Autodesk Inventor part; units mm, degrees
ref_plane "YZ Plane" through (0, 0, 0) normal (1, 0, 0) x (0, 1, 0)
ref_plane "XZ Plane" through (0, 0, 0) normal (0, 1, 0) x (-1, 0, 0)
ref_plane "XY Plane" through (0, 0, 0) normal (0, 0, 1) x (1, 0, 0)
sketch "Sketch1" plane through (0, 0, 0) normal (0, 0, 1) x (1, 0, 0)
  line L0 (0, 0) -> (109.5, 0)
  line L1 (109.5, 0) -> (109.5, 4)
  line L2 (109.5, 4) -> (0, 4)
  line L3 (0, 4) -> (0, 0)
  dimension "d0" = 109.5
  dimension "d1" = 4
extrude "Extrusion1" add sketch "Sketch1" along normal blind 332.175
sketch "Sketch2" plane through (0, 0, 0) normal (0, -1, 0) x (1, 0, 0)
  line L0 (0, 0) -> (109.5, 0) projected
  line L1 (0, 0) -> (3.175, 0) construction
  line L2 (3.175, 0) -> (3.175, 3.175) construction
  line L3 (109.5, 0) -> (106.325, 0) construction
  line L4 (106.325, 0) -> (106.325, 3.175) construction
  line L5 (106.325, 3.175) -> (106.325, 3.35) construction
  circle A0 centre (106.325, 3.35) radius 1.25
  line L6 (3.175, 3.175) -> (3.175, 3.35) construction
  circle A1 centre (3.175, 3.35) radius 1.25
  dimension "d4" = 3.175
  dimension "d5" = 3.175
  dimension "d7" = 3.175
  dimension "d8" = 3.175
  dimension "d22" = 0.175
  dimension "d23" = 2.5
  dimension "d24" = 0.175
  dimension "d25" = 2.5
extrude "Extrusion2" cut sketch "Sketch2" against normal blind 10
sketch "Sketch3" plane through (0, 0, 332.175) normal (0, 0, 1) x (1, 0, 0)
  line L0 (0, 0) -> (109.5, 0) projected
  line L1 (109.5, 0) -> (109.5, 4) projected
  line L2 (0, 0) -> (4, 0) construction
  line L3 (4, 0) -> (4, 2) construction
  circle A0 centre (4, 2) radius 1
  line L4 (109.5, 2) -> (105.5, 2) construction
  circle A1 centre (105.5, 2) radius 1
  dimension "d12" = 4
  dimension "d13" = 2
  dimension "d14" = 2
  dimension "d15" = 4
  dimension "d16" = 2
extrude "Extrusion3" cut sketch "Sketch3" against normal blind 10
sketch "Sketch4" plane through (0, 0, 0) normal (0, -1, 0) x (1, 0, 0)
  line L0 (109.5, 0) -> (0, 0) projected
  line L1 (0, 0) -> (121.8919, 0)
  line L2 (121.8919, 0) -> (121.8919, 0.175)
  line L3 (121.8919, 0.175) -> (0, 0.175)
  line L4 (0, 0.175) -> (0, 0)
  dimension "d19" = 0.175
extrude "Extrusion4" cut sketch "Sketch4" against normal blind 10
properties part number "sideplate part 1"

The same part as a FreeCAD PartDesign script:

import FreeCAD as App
import Part
import Sketcher
from FreeCAD import Vector
Q = App.Units.Quantity


def add_polygon(sketch, points):
    """Adds a closed chain of lines whose ends are joined by coincident constraints."""
    first, n = sketch.GeometryCount, len(points)
    for a, b in zip(points, points[1:] + points[:1]):
        sketch.addGeometry(Part.LineSegment(App.Vector(*a, 0), App.Vector(*b, 0)), False)
    for i in range(n):
        sketch.addConstraint(Sketcher.Constraint("Coincident", first + i, 2, first + (i + 1) % n, 1))

doc = App.newDocument("Part")
body = doc.addObject("PartDesign::Body", "Body")

# Sketch on XY plane
sketch1 = body.newObject("Sketcher::SketchObject", "Sketch")
sketch1.AttachmentSupport = (doc.getObject("XY_Plane"), [""])
sketch1.MapMode = "FlatFace"
add_polygon(sketch1, [(0, 4), (0, 0), (109.5, 0), (109.5, 4)])  # lines 0-3
sketch1.addConstraint(Sketcher.Constraint("Vertical", 0))
sketch1.addConstraint(Sketcher.Constraint("Horizontal", 1))
sketch1.addConstraint(Sketcher.Constraint("Vertical", 2))
sketch1.addConstraint(Sketcher.Constraint("Horizontal", 3))
sketch1.addConstraint(Sketcher.Constraint("Coincident", 0, 2, -1, 1))
sketch1.addConstraint(Sketcher.Constraint("DistanceY", 0, 2, 0, 1, Q("4 mm")))
sketch1.addConstraint(Sketcher.Constraint("DistanceX", 1, 1, 1, 2, Q("109.5 mm")))
pad1 = body.newObject("PartDesign::Pad", "Pad")
pad1.Profile = sketch1
pad1.Length = 332.175

# Sketch on XZ plane
sketch2 = body.newObject("Sketcher::SketchObject", "Sketch001")
sketch2.AttachmentSupport = (doc.getObject("XZ_Plane"), [""])
sketch2.MapMode = "FlatFace"
sketch2.addGeometry(Part.Circle(Vector(106.325, 3.35, 0), Vector(0, 0, 1), 1.25), False)
sketch2.addGeometry(Part.Circle(Vector(3.175, 3.35, 0), Vector(0, 0, 1), 1.25), False)
sketch2.addConstraint(Sketcher.Constraint("Equal", 0, 1))
sketch2.addConstraint(Sketcher.Constraint("Horizontal", 0, 3, 1, 3))
sketch2.addConstraint(Sketcher.Constraint("Diameter", 0, Q("2.5 mm")))
sketch2.addConstraint(Sketcher.Constraint("DistanceX", -1, 1, 1, 3, Q("3.175 mm")))
sketch2.addConstraint(Sketcher.Constraint("DistanceY", -1, 1, 0, 3, Q("3.35 mm")))
sketch2.addConstraint(Sketcher.Constraint("DistanceX", 1, 3, 0, 3, Q("103.15 mm")))
pocket1 = body.newObject("PartDesign::Pocket", "Pocket")
pocket1.Profile = sketch2
pocket1.Length = 10

# Sketch on XY plane
sketch3 = body.newObject("Sketcher::SketchObject", "Sketch002")
sketch3.AttachmentSupport = (doc.getObject("XY_Plane"), [""])
sketch3.MapMode = "FlatFace"
sketch3.AttachmentOffset = App.Placement(Vector(0, 0, 332.175), App.Rotation())
sketch3.addGeometry(Part.Circle(Vector(4, 2, 0), Vector(0, 0, 1), 1), False)
sketch3.addGeometry(Part.Circle(Vector(105.5, 2, 0), Vector(0, 0, 1), 1), False)
sketch3.addConstraint(Sketcher.Constraint("Equal", 0, 1))
sketch3.addConstraint(Sketcher.Constraint("Horizontal", 0, 3, 1, 3))
sketch3.addConstraint(Sketcher.Constraint("Diameter", 0, Q("2 mm")))
sketch3.addConstraint(Sketcher.Constraint("DistanceX", -1, 1, 0, 3, Q("4 mm")))
sketch3.addConstraint(Sketcher.Constraint("DistanceY", -1, 1, 0, 3, Q("2 mm")))
sketch3.addConstraint(Sketcher.Constraint("DistanceX", -1, 1, 1, 3, Q("105.5 mm")))
pocket2 = body.newObject("PartDesign::Pocket", "Pocket001")
pocket2.Profile = sketch3
pocket2.Length = 10

# Sketch on XZ plane
sketch4 = body.newObject("Sketcher::SketchObject", "Sketch003")
sketch4.AttachmentSupport = (doc.getObject("XZ_Plane"), [""])
sketch4.MapMode = "FlatFace"
add_polygon(sketch4, [(0, 0), (121.8919, 0), (121.8919, 0.175), (0, 0.175)])  # lines 0-3
sketch4.addConstraint(Sketcher.Constraint("Horizontal", 0))
sketch4.addConstraint(Sketcher.Constraint("Vertical", 1))
sketch4.addConstraint(Sketcher.Constraint("Horizontal", 2))
sketch4.addConstraint(Sketcher.Constraint("Vertical", 3))
sketch4.addConstraint(Sketcher.Constraint("Coincident", 3, 2, -1, 1))
sketch4.addConstraint(Sketcher.Constraint("DistanceY", 1, 1, 1, 2, Q("0.175 mm")))
sketch4.addConstraint(Sketcher.Constraint("DistanceX", 0, 1, 0, 2, Q("121.892 mm")))
pocket3 = body.newObject("PartDesign::Pocket", "Pocket002")
pocket3.Profile = sketch4
pocket3.Length = 10

doc.recompute()
